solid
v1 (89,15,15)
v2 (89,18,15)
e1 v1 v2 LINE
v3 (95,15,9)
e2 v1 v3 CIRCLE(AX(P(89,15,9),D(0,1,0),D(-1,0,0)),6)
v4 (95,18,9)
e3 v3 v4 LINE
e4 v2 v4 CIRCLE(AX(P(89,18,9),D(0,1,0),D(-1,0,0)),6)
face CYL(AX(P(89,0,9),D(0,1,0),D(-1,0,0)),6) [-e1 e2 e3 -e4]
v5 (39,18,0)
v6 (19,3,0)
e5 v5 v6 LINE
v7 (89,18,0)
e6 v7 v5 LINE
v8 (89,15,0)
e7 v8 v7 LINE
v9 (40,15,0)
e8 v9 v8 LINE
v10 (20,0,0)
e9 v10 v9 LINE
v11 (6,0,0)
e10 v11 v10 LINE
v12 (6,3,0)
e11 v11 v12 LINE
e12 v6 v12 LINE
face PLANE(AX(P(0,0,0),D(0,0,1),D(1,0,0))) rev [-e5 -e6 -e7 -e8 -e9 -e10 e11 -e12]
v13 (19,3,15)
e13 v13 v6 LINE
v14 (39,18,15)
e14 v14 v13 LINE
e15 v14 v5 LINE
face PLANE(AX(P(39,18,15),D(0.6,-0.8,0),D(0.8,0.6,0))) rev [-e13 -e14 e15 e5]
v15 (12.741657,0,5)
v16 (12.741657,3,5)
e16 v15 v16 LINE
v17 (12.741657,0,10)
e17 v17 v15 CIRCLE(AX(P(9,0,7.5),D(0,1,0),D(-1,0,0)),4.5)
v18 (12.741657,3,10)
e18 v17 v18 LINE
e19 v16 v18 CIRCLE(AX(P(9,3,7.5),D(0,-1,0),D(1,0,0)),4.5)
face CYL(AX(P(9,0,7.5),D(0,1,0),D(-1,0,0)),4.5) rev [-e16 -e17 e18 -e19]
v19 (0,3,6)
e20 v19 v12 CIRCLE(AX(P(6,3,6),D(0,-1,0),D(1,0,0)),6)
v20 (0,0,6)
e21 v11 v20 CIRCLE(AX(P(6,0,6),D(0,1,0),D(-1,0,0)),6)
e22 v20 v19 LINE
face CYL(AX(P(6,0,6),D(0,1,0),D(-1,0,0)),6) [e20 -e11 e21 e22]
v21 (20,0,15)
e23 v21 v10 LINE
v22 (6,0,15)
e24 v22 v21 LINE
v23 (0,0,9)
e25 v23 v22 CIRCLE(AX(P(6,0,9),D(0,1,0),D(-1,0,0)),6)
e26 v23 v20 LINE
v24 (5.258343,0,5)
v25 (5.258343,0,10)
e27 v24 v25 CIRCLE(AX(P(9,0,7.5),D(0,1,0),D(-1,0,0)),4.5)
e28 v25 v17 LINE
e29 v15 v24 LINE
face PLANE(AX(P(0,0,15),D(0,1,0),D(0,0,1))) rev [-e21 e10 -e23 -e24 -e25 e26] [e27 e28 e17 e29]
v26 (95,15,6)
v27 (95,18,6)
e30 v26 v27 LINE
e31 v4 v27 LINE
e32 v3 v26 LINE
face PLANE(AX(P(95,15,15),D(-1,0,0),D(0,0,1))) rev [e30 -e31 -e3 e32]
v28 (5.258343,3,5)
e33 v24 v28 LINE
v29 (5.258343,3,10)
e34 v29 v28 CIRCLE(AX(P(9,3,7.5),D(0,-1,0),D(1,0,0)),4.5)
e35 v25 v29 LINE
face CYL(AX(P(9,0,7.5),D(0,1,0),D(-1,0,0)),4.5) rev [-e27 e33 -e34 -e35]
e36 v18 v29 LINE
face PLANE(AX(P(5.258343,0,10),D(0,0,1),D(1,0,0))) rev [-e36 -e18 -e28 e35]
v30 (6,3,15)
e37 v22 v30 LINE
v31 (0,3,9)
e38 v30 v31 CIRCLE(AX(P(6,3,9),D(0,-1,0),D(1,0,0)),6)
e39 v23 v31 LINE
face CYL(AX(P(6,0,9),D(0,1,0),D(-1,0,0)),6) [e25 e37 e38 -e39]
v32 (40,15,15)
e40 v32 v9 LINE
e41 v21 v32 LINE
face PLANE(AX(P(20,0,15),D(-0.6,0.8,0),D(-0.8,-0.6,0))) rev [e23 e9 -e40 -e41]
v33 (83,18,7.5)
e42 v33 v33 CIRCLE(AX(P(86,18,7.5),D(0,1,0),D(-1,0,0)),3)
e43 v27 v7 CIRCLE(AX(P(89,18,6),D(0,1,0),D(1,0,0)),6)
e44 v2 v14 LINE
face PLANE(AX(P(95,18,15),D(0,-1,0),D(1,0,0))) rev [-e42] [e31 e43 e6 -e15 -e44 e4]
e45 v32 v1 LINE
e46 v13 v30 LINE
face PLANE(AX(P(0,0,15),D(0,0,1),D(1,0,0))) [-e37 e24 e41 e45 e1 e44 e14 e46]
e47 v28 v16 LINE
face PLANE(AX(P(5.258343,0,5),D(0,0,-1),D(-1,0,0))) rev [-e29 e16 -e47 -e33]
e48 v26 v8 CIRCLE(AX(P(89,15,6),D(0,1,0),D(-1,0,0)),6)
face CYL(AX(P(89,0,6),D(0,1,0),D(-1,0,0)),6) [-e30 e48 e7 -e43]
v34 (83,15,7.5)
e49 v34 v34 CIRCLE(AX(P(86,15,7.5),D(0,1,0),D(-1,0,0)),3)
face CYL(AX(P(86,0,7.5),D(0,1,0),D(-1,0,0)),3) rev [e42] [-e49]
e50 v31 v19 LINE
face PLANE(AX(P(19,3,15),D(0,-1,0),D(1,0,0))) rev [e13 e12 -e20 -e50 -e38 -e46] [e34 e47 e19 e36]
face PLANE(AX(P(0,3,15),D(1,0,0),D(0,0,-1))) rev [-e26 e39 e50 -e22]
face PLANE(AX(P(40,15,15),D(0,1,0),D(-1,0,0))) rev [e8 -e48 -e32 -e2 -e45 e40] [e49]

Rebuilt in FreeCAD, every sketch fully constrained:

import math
import FreeCAD as App
import Part
import Sketcher


def add_polygon(sketch, points):
    """Adds a closed chain of lines whose ends are joined by coincident constraints."""
    first, n = sketch.GeometryCount, len(points)
    for a, b in zip(points, points[1:] + points[:1]):
        sketch.addGeometry(Part.LineSegment(App.Vector(*a, 0), App.Vector(*b, 0)), False)
    for i in range(n):
        sketch.addConstraint(Sketcher.Constraint("Coincident", first + i, 2, first + (i + 1) % n, 1))

doc = App.newDocument("Part")
body = doc.addObject("PartDesign::Body", "Body")

sketch1 = body.newObject("Sketcher::SketchObject", "Sketch")
sketch1.AttachmentSupport = (doc.getObject("XY_Plane"), [""])
sketch1.MapMode = "FlatFace"
add_polygon(sketch1, [(0, 0), (20, 0), (40, 15), (95, 15), (95, 18), (39, 18), (19, 3), (0, 3)])
sketch1.addConstraint([
    Sketcher.Constraint("Horizontal", 0),
    Sketcher.Constraint("Horizontal", 2),
    Sketcher.Constraint("Vertical", 3),
    Sketcher.Constraint("Horizontal", 4),
    Sketcher.Constraint("Horizontal", 6),
    Sketcher.Constraint("Vertical", 7),
    Sketcher.Constraint("Coincident", 7, 2, -1, 1),
    Sketcher.Constraint("Parallel", 1, 5),
    Sketcher.Constraint("Equal", 3, 7),
    Sketcher.Constraint("DistanceX", 0, 1, 0, 2, 20.0),
    Sketcher.Constraint("DistanceX", 2, 1, 2, 2, 55.0),
    Sketcher.Constraint("DistanceX", 4, 2, 4, 1, 56.0),
    Sketcher.Constraint("DistanceY", 3, 1, 3, 2, 3.0),
    Sketcher.Constraint("Distance", 1, 25.0),
    Sketcher.Constraint("DistanceX", -1, 1, 1, 2, 40.0),
])
pad1 = body.newObject("PartDesign::Pad", "Pad")
pad1.Profile = sketch1
pad1.Length = 15

sketch2 = body.newObject("Sketcher::SketchObject", "Sketch001")
sketch2.AttachmentSupport = (doc.getObject("XZ_Plane"), [""])
sketch2.MapMode = "FlatFace"
sketch2.AttachmentOffset = App.Placement(App.Vector(0, 0, -18), App.Rotation())
add_polygon(sketch2, [(-10.8, -10.8), (-10.8, 25.8), (105.8, 25.8), (105.8, -10.8)])
sketch2.addGeometry(Part.ArcOfCircle(Part.Circle(App.Vector(6, 6, 0), App.Vector(0, 0, 1), 6), math.radians(180), math.radians(270)), False)
sketch2.addGeometry(Part.LineSegment(App.Vector(6, 0, 0), App.Vector(89, 0, 0)), False)
sketch2.addGeometry(Part.ArcOfCircle(Part.Circle(App.Vector(89, 6, 0), App.Vector(0, 0, 1), 6), math.radians(-90), math.radians(0)), False)
sketch2.addGeometry(Part.LineSegment(App.Vector(95, 6, 0), App.Vector(95, 9, 0)), False)
sketch2.addGeometry(Part.ArcOfCircle(Part.Circle(App.Vector(89, 9, 0), App.Vector(0, 0, 1), 6), math.radians(0), math.radians(90)), False)
sketch2.addGeometry(Part.LineSegment(App.Vector(89, 15, 0), App.Vector(6, 15, 0)), False)
sketch2.addGeometry(Part.ArcOfCircle(Part.Circle(App.Vector(6, 9, 0), App.Vector(0, 0, 1), 6), math.radians(90), math.radians(180)), False)
sketch2.addGeometry(Part.LineSegment(App.Vector(0, 9, 0), App.Vector(0, 6, 0)), False)
sketch2.addGeometry(Part.Circle(App.Vector(86, 7.5, 0), App.Vector(0, 0, 1), 3), False)
sketch2.addGeometry(Part.LineSegment(App.Vector(12.7, 5, 0), App.Vector(5.3, 5, 0)), False)
sketch2.addGeometry(Part.ArcOfCircle(Part.Circle(App.Vector(9, 7.5, 0), App.Vector(0, 0, 1), 4.5), math.radians(146), math.radians(214)), False)
sketch2.addGeometry(Part.LineSegment(App.Vector(5.3, 10, 0), App.Vector(12.7, 10, 0)), False)
sketch2.addGeometry(Part.ArcOfCircle(Part.Circle(App.Vector(9, 7.5, 0), App.Vector(0, 0, 1), 4.5), math.radians(-34), math.radians(34)), False)
sketch2.addConstraint([
    Sketcher.Constraint("Tangent", 4, 2, 5, 1),
    Sketcher.Constraint("Tangent", 5, 2, 6, 1),
    Sketcher.Constraint("Tangent", 6, 2, 7, 1),
    Sketcher.Constraint("Tangent", 7, 2, 8, 1),
    Sketcher.Constraint("Tangent", 8, 2, 9, 1),
    Sketcher.Constraint("Tangent", 9, 2, 10, 1),
    Sketcher.Constraint("Tangent", 10, 2, 11, 1),
    Sketcher.Constraint("Tangent", 11, 2, 4, 1),
    Sketcher.Constraint("Coincident", 13, 2, 14, 2),
    Sketcher.Constraint("Coincident", 14, 1, 15, 1),
    Sketcher.Constraint("Coincident", 15, 2, 16, 2),
    Sketcher.Constraint("Coincident", 16, 1, 13, 1),
    Sketcher.Constraint("Vertical", 0),
    Sketcher.Constraint("Horizontal", 1),
    Sketcher.Constraint("Vertical", 2),
    Sketcher.Constraint("Horizontal", 3),
    Sketcher.Constraint("Horizontal", 5),
    Sketcher.Constraint("Vertical", 7),
    Sketcher.Constraint("Horizontal", 9),
    Sketcher.Constraint("Vertical", 11),
    Sketcher.Constraint("Horizontal", 13),
    Sketcher.Constraint("Horizontal", 15),
    Sketcher.Constraint("Coincident", 16, 3, 14, 3),
    Sketcher.Constraint("Equal", 4, 6),
    Sketcher.Constraint("Equal", 6, 8),
    Sketcher.Constraint("Equal", 8, 10),
    Sketcher.Constraint("Equal", 14, 16),
    Sketcher.Constraint("PointOnObject", 4, 2, -1),
    Sketcher.Constraint("PointOnObject", 10, 2, -2),
    Sketcher.Constraint("Horizontal", 12, 3, 14, 3),
    Sketcher.Constraint("Vertical", 13, 2, 14, 1),
    Sketcher.Constraint("Diameter", 12, 6.0),
    Sketcher.Constraint("Radius", 4, 6.0),
    Sketcher.Constraint("Radius", 14, 4.5),
    Sketcher.Constraint("DistanceX", 5, 1, 5, 2, 83.0),
    Sketcher.Constraint("DistanceY", 7, 1, 7, 2, 3.0),
    Sketcher.Constraint("DistanceX", -1, 1, 12, 3, 86.0),
    Sketcher.Constraint("DistanceX", -1, 1, 14, 3, 9.0),
    Sketcher.Constraint("DistanceY", -1, 1, 13, 2, 5.0),
    Sketcher.Constraint("DistanceY", -1, 1, 14, 1, 10.0),
    Sketcher.Constraint("DistanceX", 1, 1, 1, 2, 116.57),
    Sketcher.Constraint("DistanceY", 0, 1, 0, 2, 36.57),
    Sketcher.Constraint("DistanceX", 0, 2, -1, 1, 10.785),
    Sketcher.Constraint("DistanceY", -1, 1, 0, 2, 25.785),
])
pocket1 = body.newObject("PartDesign::Pocket", "Pocket")
pocket1.Profile = sketch2
pocket1.Type = "ThroughAll"
pocket1.Reversed = True

doc.recompute()
